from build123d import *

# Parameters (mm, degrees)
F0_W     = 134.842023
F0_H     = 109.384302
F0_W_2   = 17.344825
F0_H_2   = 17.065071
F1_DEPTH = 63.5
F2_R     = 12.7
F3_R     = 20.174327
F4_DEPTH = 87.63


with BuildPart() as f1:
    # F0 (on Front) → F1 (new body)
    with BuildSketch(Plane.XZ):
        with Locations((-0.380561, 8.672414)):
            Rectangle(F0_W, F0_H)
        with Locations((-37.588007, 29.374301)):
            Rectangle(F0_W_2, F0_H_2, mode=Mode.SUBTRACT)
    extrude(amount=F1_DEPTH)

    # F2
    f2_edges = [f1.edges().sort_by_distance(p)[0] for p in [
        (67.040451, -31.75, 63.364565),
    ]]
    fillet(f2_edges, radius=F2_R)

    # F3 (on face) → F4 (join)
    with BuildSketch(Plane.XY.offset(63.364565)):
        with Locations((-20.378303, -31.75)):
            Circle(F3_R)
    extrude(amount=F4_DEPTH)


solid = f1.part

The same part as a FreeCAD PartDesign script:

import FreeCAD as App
import Part
import Sketcher

V = App.Vector
Q = App.Units.Quantity


def edges_at(feature, points):
    """Names of the edges that pass closest to the given points."""
    edges = feature.Shape.Edges
    near = lambda p: min(range(len(edges)), key=lambda i: edges[i].distToShape(Part.Vertex(*p))[0])
    return sorted({f"Edge{near(p) + 1}" for p in points})


def add_polygon(sketch, points):
    """Adds a closed chain of lines whose ends are joined by coincident constraints."""
    first, n = sketch.GeometryCount, len(points)
    for a, b in zip(points, points[1:] + points[:1]):
        sketch.addGeometry(Part.LineSegment(App.Vector(*a, 0), App.Vector(*b, 0)), False)
    for i in range(n):
        sketch.addConstraint(Sketcher.Constraint("Coincident", first + i, 2, first + (i + 1) % n, 1))

doc = App.newDocument("Part")
body = doc.addObject("PartDesign::Body", "Body")

sketch1 = body.newObject("Sketcher::SketchObject", "Sketch")
sketch1.AttachmentSupport = (doc.getObject("XZ_Plane"), [""])
sketch1.MapMode = "FlatFace"
add_polygon(sketch1, [(-67.801573, 63.364565), (-67.801573, -46.019737), (67.040451, -46.019737), (67.040451, 63.364565)])
add_polygon(sketch1, [(-28.915595, 20.841766), (-46.260419, 20.841766), (-46.260419, 37.906836), (-28.915595, 37.906836)])
sketch1.addConstraint([
    Sketcher.Constraint("Vertical", 0),
    Sketcher.Constraint("Horizontal", 1),
    Sketcher.Constraint("Vertical", 2),
    Sketcher.Constraint("Horizontal", 3),
    Sketcher.Constraint("Horizontal", 4),
    Sketcher.Constraint("Vertical", 5),
    Sketcher.Constraint("Horizontal", 6),
    Sketcher.Constraint("Vertical", 7),
    Sketcher.Constraint("DistanceY", 0, 2, 0, 1, Q("109.384302 mm")),
    Sketcher.Constraint("DistanceY", 5, 1, 5, 2, Q("17.065071 mm")),
    Sketcher.Constraint("DistanceY", 4, 2, 3, 2, Q("42.522799 mm")),
    Sketcher.Constraint("DistanceX", 1, 1, 1, 2, Q("134.842023 mm")),
    Sketcher.Constraint("DistanceX", 4, 2, 4, 1, Q("17.344825 mm")),
    Sketcher.Constraint("DistanceX", -1, 1, 1, 2, Q("67.040451 mm")),
    Sketcher.Constraint("DistanceX", 4, 2, -1, 1, Q("46.260419 mm")),
    Sketcher.Constraint("DistanceY", 0, 2, -1, 1, Q("46.019737 mm")),
])
pad1 = body.newObject("PartDesign::Pad", "Pad")
pad1.Profile = sketch1
pad1.Length = Q("2.5 in")
doc.recompute()

fillet = body.newObject("PartDesign::Fillet", "Fillet")
fillet.Base = (pad1, edges_at(pad1, [(67.04, -31.75, 63.365)]))
fillet.Radius = Q("0.5 in")

sketch2 = body.newObject("Sketcher::SketchObject", "Sketch001")
sketch2.AttachmentSupport = (doc.getObject("XY_Plane"), [""])
sketch2.MapMode = "FlatFace"
sketch2.AttachmentOffset = App.Placement(V(0, 0, 63.364565), App.Rotation())
sketch2.addGeometry(Part.Circle(V(-20.378303, -31.75, 0), V(0, 0, 1), 20.174327), False)
sketch2.addConstraint([
    Sketcher.Constraint("DistanceY", 0, 3, -1, 1, Q("1.25 in")),
    Sketcher.Constraint("Diameter", 0, Q("40.348654 mm")),
    Sketcher.Constraint("DistanceX", 0, 3, -1, 1, Q("20.378303 mm")),
])
pad2 = body.newObject("PartDesign::Pad", "Pad001")
pad2.Profile = sketch2
pad2.Length = Q("3.45 in")

doc.recompute()
